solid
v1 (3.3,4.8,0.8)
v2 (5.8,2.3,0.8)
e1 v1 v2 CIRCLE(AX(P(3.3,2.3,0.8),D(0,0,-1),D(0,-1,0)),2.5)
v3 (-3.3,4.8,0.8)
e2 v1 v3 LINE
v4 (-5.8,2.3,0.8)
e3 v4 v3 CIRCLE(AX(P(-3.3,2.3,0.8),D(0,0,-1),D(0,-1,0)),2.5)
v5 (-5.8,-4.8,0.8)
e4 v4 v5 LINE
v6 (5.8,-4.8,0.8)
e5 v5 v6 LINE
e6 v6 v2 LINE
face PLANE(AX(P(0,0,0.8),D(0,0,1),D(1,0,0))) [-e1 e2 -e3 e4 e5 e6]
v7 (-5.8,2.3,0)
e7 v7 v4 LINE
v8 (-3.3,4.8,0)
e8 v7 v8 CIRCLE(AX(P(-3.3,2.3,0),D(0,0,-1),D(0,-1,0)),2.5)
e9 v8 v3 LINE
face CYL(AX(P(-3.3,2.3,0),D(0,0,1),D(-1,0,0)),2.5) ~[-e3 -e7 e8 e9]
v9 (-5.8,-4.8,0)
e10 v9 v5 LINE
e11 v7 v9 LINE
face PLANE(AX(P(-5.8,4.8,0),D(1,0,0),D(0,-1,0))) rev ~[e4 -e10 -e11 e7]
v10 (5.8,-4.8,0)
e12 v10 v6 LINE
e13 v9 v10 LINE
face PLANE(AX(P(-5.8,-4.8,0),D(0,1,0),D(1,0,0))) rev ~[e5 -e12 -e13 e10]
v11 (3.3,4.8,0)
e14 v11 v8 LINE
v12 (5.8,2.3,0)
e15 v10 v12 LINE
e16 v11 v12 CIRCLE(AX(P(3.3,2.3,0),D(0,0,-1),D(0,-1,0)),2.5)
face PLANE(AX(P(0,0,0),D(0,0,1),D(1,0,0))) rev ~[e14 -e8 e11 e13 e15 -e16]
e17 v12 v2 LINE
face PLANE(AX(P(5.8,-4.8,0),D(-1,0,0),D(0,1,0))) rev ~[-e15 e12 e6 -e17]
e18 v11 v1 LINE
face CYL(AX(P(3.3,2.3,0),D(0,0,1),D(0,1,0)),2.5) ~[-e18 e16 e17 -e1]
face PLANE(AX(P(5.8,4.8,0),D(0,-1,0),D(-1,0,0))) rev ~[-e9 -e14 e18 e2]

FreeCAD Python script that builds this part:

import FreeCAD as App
import Part
import Sketcher
from FreeCAD import Vector
Q = App.Units.Quantity


def edges_at(feature, points):
    """Names of the edges that pass closest to the given points."""
    edges = feature.Shape.Edges
    near = lambda p: min(range(len(edges)), key=lambda i: edges[i].distToShape(Part.Vertex(*p))[0])
    return sorted({f"Edge{near(p) + 1}" for p in points})

doc = App.newDocument("Part")
params = doc.addObject("Spreadsheet::Sheet", "Params")
for row, (alias, value) in enumerate([
    ("sketch1_width", "11.6 mm"),
    ("sketch1_height", "9.6 mm"),
    ("pad1_length", "0.8 mm"),
    ("fillet_radius", "2.5 mm"),
], start=1):
    params.set(f"A{row}", alias)
    params.set(f"B{row}", "=" + value)
    params.setAlias(f"B{row}", alias)

body = doc.addObject("PartDesign::Body", "Body")

sketch1 = doc.addObject("Sketcher::SketchObject", "Sketch")
body.addObject(sketch1)
sketch1.AttachmentSupport = (doc.XY_Plane, [""])
sketch1.MapMode = "FlatFace"
sketch1.addGeometry([
    Part.LineSegment(Vector(-6, 5, 0), Vector(-6, -5, 0)),
    Part.LineSegment(Vector(-6, -5, 0), Vector(6, -5, 0)),
    Part.LineSegment(Vector(6, -5, 0), Vector(6, 5, 0)),
    Part.LineSegment(Vector(6, 5, 0), Vector(-6, 5, 0)),
], False)
sketch1.addConstraint([
    Sketcher.Constraint("Coincident", 0, 2, 1, 1),
    Sketcher.Constraint("Coincident", 1, 2, 2, 1),
    Sketcher.Constraint("Coincident", 2, 2, 3, 1),
    Sketcher.Constraint("Coincident", 3, 2, 0, 1),
    Sketcher.Constraint("Vertical", 0),
    Sketcher.Constraint("Horizontal", 1),
    Sketcher.Constraint("Vertical", 2),
    Sketcher.Constraint("Horizontal", 3),
    Sketcher.Constraint("Symmetric", 0, 2, 2, 2, -1, 1),
    Sketcher.Constraint("DistanceX", 1, 1, 1, 2, Q("11.6 mm")),
    Sketcher.Constraint("DistanceY", 0, 2, 0, 1, Q("9.6 mm")),
])
sketch1.setExpression("Constraints[9]", "Params.sketch1_width")
sketch1.setExpression("Constraints[10]", "Params.sketch1_height")
pad1 = doc.addObject("PartDesign::Pad", "Pad")
body.addObject(pad1)
pad1.Profile = sketch1
pad1.setExpression("Length", "Params.pad1_length")
doc.recompute()

fillet = doc.addObject("PartDesign::Fillet", "Fillet")
body.addObject(fillet)
fillet.Base = (pad1, edges_at(pad1, [(-5.8, 4.8, 0.4), (5.8, 4.8, 0.4)]))
fillet.setExpression("Radius", "Params.fillet_radius")

doc.recompute()
